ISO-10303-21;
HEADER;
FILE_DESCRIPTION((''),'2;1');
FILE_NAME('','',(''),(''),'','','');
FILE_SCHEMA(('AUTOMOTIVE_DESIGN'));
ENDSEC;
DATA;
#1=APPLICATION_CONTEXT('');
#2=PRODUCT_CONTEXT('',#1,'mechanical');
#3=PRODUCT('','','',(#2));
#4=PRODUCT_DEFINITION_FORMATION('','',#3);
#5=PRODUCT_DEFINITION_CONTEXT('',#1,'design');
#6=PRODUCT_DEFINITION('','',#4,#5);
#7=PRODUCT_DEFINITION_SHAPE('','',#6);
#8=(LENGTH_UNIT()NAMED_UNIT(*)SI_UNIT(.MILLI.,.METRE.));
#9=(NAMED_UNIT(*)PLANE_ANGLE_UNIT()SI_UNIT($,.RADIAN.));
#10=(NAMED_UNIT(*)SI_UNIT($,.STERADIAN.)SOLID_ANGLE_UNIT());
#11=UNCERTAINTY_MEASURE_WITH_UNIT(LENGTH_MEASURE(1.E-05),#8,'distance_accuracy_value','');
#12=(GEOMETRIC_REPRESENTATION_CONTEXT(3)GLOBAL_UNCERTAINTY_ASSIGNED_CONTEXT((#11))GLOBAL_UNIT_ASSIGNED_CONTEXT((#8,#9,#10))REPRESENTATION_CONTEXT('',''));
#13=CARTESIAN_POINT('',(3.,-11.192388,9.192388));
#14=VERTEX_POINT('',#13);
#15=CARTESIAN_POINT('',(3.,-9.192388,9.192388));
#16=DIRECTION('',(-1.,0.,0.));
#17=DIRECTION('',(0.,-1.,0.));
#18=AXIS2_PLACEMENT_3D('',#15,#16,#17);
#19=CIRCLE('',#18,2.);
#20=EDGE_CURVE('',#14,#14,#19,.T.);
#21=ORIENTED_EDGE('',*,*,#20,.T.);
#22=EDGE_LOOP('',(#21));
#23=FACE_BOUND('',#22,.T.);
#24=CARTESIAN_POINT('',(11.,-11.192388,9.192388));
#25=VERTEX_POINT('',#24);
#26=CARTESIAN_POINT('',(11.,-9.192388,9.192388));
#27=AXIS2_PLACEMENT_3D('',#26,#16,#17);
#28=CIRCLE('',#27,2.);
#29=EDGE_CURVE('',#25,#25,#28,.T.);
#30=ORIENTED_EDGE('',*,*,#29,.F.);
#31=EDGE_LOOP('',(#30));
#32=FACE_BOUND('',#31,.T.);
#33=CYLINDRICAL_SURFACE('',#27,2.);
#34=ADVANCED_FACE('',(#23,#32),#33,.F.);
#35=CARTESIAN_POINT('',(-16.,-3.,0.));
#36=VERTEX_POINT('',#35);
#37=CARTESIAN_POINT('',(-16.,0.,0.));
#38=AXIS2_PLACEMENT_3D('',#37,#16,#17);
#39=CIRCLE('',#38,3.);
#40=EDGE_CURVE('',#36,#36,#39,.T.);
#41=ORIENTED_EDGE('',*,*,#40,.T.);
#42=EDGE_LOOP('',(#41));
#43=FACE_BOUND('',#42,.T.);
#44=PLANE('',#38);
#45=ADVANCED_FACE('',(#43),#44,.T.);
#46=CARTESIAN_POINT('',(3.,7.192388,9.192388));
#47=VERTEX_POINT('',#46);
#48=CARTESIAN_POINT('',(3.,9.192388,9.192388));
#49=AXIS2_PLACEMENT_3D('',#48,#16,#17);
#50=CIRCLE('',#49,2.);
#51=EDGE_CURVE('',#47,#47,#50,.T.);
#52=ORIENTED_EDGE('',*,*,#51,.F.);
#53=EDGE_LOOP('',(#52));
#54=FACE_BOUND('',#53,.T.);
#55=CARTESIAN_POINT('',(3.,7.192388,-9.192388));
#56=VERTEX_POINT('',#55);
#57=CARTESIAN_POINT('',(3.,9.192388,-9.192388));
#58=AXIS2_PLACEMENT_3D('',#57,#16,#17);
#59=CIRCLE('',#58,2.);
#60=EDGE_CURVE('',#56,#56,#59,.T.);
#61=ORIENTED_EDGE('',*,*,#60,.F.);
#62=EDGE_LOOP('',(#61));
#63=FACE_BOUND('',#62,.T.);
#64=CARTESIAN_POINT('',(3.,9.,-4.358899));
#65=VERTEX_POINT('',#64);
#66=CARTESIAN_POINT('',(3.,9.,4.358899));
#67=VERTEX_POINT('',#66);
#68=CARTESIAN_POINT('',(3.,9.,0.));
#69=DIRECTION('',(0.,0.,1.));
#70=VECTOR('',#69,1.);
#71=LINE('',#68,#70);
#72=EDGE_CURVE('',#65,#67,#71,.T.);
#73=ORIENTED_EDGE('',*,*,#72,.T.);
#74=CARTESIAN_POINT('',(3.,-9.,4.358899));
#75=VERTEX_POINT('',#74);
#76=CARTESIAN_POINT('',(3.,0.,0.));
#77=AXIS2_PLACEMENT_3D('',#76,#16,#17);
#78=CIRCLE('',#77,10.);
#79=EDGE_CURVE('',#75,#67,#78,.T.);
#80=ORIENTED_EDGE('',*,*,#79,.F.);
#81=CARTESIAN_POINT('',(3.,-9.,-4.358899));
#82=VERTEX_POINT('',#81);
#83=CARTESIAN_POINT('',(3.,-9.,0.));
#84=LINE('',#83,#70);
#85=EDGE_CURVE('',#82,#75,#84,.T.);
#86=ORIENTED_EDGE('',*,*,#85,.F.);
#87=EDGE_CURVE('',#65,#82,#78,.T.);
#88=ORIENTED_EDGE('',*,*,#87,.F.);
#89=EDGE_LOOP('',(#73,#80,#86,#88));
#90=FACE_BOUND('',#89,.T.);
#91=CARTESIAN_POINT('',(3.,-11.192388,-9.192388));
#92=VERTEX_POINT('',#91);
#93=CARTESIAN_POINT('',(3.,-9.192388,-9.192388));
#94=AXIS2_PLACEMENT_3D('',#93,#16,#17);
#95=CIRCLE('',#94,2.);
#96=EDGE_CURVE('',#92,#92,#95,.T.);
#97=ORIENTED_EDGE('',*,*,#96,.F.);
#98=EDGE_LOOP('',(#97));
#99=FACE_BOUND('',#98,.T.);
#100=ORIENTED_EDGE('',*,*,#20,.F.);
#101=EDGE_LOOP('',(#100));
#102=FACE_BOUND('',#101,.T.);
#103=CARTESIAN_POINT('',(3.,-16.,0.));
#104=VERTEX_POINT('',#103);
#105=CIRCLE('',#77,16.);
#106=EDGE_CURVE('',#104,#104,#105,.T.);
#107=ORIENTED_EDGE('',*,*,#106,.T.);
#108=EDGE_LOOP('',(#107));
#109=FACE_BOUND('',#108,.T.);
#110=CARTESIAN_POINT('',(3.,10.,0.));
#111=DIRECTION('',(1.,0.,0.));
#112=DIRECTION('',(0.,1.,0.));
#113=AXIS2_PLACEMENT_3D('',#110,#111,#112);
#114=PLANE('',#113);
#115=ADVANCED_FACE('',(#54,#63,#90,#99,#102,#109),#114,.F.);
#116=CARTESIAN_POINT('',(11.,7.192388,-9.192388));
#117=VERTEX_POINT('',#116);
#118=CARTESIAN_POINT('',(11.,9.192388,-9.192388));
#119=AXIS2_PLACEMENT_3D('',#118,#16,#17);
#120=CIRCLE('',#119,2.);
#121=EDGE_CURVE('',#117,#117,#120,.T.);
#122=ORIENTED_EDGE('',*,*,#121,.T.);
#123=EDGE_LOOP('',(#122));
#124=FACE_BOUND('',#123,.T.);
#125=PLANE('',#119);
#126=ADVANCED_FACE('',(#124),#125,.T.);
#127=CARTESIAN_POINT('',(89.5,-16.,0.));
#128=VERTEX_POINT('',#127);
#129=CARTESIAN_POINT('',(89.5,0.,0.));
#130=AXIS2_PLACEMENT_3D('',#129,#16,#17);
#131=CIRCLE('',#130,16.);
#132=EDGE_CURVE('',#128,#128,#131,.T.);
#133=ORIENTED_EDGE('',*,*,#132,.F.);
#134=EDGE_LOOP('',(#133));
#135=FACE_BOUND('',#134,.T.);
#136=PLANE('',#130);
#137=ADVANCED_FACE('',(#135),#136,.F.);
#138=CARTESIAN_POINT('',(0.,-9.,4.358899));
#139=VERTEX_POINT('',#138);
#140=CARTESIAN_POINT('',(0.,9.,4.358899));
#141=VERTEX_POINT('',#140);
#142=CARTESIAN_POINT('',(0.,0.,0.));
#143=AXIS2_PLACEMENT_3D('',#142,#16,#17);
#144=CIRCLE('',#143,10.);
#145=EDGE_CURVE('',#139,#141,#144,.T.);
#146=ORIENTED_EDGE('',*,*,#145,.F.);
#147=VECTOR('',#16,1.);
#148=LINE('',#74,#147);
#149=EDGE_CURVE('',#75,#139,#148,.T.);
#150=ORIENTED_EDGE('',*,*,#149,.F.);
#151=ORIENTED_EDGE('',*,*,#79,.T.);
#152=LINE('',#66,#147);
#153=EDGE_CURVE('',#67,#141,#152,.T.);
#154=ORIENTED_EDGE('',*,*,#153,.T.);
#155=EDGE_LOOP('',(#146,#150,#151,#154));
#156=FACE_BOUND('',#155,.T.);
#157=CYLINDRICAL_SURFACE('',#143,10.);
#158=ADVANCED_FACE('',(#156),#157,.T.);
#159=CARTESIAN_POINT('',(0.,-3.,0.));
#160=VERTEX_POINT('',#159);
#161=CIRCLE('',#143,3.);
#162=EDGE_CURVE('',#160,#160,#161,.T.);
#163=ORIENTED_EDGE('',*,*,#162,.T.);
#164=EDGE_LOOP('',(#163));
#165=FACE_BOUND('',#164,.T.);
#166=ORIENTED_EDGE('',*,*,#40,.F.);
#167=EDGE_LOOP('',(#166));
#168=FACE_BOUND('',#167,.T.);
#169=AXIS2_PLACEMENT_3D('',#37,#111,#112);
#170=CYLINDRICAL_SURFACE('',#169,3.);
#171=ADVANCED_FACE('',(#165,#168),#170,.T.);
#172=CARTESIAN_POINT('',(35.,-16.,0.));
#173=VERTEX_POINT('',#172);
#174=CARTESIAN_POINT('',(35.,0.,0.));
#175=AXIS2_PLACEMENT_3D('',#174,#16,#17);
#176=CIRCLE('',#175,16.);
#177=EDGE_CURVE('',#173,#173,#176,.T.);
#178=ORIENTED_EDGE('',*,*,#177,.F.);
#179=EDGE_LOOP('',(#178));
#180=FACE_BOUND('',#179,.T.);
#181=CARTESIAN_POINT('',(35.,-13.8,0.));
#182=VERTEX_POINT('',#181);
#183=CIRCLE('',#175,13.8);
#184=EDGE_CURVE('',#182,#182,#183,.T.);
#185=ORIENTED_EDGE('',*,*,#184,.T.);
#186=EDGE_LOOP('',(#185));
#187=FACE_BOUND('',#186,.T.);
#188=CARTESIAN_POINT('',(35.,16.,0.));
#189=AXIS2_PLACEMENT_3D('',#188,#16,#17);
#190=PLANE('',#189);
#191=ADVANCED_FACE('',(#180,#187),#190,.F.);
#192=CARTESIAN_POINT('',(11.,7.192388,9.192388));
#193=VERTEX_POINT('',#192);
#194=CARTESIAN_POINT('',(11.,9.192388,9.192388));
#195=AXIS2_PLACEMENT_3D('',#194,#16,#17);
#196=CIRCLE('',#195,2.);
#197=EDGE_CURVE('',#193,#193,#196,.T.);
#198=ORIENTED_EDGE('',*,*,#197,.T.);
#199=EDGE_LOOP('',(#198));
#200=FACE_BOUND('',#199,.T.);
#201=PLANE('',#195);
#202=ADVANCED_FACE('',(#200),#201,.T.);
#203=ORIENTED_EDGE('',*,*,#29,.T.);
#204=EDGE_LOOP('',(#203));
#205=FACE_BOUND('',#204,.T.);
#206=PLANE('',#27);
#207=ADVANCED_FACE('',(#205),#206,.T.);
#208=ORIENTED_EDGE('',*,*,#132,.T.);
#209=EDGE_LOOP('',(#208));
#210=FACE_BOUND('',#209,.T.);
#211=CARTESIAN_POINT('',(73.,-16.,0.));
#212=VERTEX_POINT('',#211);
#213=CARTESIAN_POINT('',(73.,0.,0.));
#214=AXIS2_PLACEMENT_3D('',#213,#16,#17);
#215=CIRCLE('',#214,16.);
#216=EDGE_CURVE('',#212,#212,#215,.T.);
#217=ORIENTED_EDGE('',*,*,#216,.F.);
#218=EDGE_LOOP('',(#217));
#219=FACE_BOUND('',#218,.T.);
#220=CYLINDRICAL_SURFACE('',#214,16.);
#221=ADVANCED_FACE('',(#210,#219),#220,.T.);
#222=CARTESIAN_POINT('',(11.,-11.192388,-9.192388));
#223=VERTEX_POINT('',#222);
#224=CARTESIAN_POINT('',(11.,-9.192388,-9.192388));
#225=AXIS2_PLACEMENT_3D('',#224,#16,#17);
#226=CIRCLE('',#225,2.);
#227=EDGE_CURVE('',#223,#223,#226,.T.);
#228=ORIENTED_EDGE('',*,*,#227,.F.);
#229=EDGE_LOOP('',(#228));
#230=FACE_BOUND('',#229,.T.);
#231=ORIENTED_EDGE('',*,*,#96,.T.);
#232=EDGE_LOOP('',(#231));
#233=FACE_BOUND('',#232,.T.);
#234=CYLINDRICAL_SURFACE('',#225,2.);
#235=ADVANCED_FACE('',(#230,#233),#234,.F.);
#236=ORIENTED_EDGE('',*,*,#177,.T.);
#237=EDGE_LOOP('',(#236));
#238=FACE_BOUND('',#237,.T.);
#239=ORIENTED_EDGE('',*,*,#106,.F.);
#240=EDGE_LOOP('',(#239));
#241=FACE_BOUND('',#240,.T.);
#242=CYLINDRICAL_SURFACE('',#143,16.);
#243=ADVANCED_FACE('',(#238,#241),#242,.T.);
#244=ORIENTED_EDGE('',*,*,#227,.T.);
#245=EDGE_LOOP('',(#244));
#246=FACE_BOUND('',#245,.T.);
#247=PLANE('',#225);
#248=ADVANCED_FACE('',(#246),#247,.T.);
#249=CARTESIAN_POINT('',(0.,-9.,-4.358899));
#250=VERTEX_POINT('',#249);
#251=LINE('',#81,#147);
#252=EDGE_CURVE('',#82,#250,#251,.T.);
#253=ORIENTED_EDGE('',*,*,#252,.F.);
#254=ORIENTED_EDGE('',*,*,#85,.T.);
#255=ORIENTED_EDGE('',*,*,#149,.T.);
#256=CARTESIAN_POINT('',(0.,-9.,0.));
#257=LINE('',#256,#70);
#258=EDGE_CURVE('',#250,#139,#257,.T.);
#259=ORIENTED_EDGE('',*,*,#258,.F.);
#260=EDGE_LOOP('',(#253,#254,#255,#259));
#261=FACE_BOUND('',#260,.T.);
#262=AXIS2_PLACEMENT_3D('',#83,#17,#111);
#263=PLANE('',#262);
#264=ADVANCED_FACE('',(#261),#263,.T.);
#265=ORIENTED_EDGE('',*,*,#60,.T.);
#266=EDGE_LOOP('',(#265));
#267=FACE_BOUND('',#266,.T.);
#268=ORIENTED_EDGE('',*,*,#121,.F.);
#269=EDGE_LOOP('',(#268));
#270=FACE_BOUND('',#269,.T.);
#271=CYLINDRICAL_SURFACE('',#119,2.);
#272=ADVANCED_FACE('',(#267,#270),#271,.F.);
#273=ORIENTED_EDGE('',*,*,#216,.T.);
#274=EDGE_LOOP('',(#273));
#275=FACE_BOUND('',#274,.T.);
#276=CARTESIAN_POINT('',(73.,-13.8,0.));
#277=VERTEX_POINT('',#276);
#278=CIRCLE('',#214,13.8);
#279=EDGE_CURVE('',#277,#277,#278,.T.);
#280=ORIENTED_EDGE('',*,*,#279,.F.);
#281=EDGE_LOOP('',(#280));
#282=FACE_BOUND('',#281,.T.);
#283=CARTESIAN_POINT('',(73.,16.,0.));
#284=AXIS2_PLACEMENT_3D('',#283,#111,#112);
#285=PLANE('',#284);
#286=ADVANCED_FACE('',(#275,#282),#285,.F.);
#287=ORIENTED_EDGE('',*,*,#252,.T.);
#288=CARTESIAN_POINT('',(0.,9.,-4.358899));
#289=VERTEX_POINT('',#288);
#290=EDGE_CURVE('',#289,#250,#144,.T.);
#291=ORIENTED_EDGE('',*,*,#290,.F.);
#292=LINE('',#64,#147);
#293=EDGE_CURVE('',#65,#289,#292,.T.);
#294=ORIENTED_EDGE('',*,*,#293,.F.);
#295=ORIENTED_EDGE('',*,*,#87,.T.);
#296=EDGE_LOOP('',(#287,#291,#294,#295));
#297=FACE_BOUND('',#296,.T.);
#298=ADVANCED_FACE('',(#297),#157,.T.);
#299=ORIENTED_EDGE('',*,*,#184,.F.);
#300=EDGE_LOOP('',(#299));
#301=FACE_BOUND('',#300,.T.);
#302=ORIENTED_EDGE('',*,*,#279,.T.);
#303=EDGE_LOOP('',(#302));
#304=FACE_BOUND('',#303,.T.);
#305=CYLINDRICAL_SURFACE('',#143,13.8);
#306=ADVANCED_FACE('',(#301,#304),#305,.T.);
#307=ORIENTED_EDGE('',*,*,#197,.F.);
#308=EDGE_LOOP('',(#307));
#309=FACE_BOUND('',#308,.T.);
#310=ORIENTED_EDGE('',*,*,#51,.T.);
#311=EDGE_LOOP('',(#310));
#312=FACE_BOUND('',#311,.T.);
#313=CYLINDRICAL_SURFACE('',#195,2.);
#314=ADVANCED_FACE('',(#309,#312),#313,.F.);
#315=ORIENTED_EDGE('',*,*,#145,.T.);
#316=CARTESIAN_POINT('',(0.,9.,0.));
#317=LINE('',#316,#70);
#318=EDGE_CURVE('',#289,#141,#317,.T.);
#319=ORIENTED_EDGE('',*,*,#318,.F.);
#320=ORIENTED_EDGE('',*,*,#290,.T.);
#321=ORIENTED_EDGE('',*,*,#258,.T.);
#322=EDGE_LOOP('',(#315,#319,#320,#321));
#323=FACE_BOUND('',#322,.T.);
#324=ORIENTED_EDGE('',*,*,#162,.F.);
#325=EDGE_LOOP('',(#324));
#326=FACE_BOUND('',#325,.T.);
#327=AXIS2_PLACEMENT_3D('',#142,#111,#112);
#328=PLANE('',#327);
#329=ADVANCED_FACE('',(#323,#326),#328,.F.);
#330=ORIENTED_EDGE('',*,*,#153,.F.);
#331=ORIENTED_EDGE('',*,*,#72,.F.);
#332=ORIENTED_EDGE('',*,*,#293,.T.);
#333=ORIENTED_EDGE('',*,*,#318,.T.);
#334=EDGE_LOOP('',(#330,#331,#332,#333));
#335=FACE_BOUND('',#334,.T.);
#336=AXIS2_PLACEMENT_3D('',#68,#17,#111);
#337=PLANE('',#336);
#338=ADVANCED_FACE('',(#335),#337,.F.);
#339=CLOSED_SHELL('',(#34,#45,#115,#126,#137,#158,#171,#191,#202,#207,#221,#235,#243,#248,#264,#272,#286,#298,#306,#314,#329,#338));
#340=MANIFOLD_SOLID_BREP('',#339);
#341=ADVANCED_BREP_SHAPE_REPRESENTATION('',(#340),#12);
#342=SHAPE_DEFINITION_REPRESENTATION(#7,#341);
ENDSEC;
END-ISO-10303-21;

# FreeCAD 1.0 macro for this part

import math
import FreeCAD as App
import Part
import Sketcher

doc = App.newDocument("Part")
params = doc.addObject("Spreadsheet::Sheet", "Params")
for row, (alias, value) in enumerate([
    ("sketch1_width", "73 mm"),
    ("sketch1_width2", "38 mm"),
    ("sketch1_width3", "32 mm"),
    ("sketch1_height", "10 mm"),
    ("sketch1_height2", "6 mm"),
    ("revolution_angle", "360 deg"),
    ("sketch2_height", "16 mm"),
    ("sketch2_width", "16.5 mm"),
    ("revolution2_angle", "360 deg"),
    ("sketch3_diameter", "4 mm"),
    ("pocket1_length", "8 mm"),
    ("sketch4_diameter", "6 mm"),
    ("pad1_length", "16 mm"),
    ("sketch5_radius", "10 mm"),
    ("pocket2_length", "3 mm"),
], start=1):
    params.set(f"A{row}", alias)
    params.set(f"B{row}", "=" + value)
    params.setAlias(f"B{row}", alias)

body = doc.addObject("PartDesign::Body", "Body")

# Sketch on XY plane
sketch1 = body.newObject("Sketcher::SketchObject", "Sketch")
sketch1.AttachmentSupport = (doc.getObject("XY_Plane"), [""])
sketch1.MapMode = "FlatFace"
sketch1.addGeometry([
    Part.LineSegment(App.Vector(0, 10, 0), App.Vector(0, 0, 0)),  # 0
    Part.LineSegment(App.Vector(0, 0, 0), App.Vector(73, 0, 0)),  # 1
    Part.LineSegment(App.Vector(73, 0, 0), App.Vector(73, 13.8, 0)),  # 2
    Part.LineSegment(App.Vector(73, 13.8, 0), App.Vector(35, 13.8, 0)),  # 3
    Part.LineSegment(App.Vector(35, 13.8, 0), App.Vector(35, 16, 0)),  # 4
    Part.LineSegment(App.Vector(35, 16, 0), App.Vector(3, 16, 0)),  # 5
    Part.LineSegment(App.Vector(3, 16, 0), App.Vector(3, 10, 0)),  # 6
    Part.LineSegment(App.Vector(3, 10, 0), App.Vector(0, 10, 0)),  # 7
], False)
sketch1.addConstraint([
    Sketcher.Constraint("Coincident", 0, 2, 1, 1),
    Sketcher.Constraint("Coincident", 1, 2, 2, 1),
    Sketcher.Constraint("Coincident", 2, 2, 3, 1),
    Sketcher.Constraint("Coincident", 3, 2, 4, 1),
    Sketcher.Constraint("Coincident", 4, 2, 5, 1),
    Sketcher.Constraint("Coincident", 5, 2, 6, 1),
    Sketcher.Constraint("Coincident", 6, 2, 7, 1),
    Sketcher.Constraint("Coincident", 7, 2, 0, 1),
    Sketcher.Constraint("Vertical", 0),
    Sketcher.Constraint("Horizontal", 1),
    Sketcher.Constraint("Vertical", 2),
    Sketcher.Constraint("Horizontal", 3),
    Sketcher.Constraint("Vertical", 4),
    Sketcher.Constraint("Horizontal", 5),
    Sketcher.Constraint("Vertical", 6),
    Sketcher.Constraint("Horizontal", 7),
    Sketcher.Constraint("Coincident", 0, 2, -1, 1),
    Sketcher.Constraint("DistanceX", 1, 1, 1, 2, 73.0),
    Sketcher.Constraint("DistanceX", 3, 2, 3, 1, 38.0),
    Sketcher.Constraint("DistanceX", 5, 2, 5, 1, 32.0),
    Sketcher.Constraint("DistanceY", 0, 2, 0, 1, 10.0),
    Sketcher.Constraint("DistanceY", 6, 2, 6, 1, 6.0),
    Sketcher.Constraint("DistanceY", 2, 1, 2, 2, 13.8),
])
sketch1.setExpression("Constraints[17]", "Params.sketch1_width")
sketch1.setExpression("Constraints[18]", "Params.sketch1_width2")
sketch1.setExpression("Constraints[19]", "Params.sketch1_width3")
sketch1.setExpression("Constraints[20]", "Params.sketch1_height")
sketch1.setExpression("Constraints[21]", "Params.sketch1_height2")
revolution = body.newObject("PartDesign::Revolution", "Revolution")
revolution.Profile = sketch1
revolution.ReferenceAxis = (sketch1, ["H_Axis"])
revolution.setExpression("Angle", "Params.revolution_angle")

# Sketch on XY plane
sketch2 = body.newObject("Sketcher::SketchObject", "Sketch001")
sketch2.AttachmentSupport = (doc.getObject("XY_Plane"), [""])
sketch2.MapMode = "FlatFace"
sketch2.addGeometry([
    Part.LineSegment(App.Vector(73, 16, 0), App.Vector(73, 0, 0)),
    Part.LineSegment(App.Vector(73, 0, 0), App.Vector(90, 0, 0)),
    Part.LineSegment(App.Vector(90, 0, 0), App.Vector(90, 16, 0)),
    Part.LineSegment(App.Vector(90, 16, 0), App.Vector(73, 16, 0)),
], False)
sketch2.addConstraint([
    Sketcher.Constraint("Coincident", 0, 2, 1, 1),
    Sketcher.Constraint("Coincident", 1, 2, 2, 1),
    Sketcher.Constraint("Coincident", 2, 2, 3, 1),
    Sketcher.Constraint("Coincident", 3, 2, 0, 1),
    Sketcher.Constraint("Vertical", 0),
    Sketcher.Constraint("Horizontal", 1),
    Sketcher.Constraint("Vertical", 2),
    Sketcher.Constraint("Horizontal", 3),
    Sketcher.Constraint("PointOnObject", 0, 2, -1),
    Sketcher.Constraint("DistanceY", 0, 2, 0, 1, 16.0),
    Sketcher.Constraint("DistanceX", 1, 1, 1, 2, 16.5),
    Sketcher.Constraint("DistanceX", -1, 1, 0, 2, 73.0),
])
sketch2.setExpression("Constraints[9]", "Params.sketch2_height")
sketch2.setExpression("Constraints[10]", "Params.sketch2_width")
revolution2 = body.newObject("PartDesign::Revolution", "Revolution001")
revolution2.Profile = sketch2
revolution2.ReferenceAxis = (sketch2, ["H_Axis"])
revolution2.setExpression("Angle", "Params.revolution2_angle")

# Sketch on YZ plane
sketch3 = body.newObject("Sketcher::SketchObject", "Sketch002")
sketch3.AttachmentSupport = (doc.getObject("YZ_Plane"), [""])
sketch3.MapMode = "FlatFace"
sketch3.AttachmentOffset = App.Placement(App.Vector(0, 0, 3), App.Rotation())
sketch3.addGeometry([
    Part.Circle(App.Vector(9.2, 9.2, 0), App.Vector(0, 0, 1), 2),
    Part.Circle(App.Vector(-9.2, 9.2, 0), App.Vector(0, 0, 1), 2),
    Part.Circle(App.Vector(-9.2, -9.2, 0), App.Vector(0, 0, 1), 2),
    Part.Circle(App.Vector(9.2, -9.2, 0), App.Vector(0, 0, 1), 2),
], False)
sketch3.addConstraint([
    Sketcher.Constraint("Equal", 0, 1),
    Sketcher.Constraint("Equal", 1, 2),
    Sketcher.Constraint("Equal", 2, 3),
    Sketcher.Constraint("Symmetric", 0, 3, 2, 3, -1, 1),
    Sketcher.Constraint("Symmetric", 1, 3, 3, 3, -1, 1),
    Sketcher.Constraint("Symmetric", 0, 3, 1, 3, -2),
    Sketcher.Constraint("Diameter", 0, 4.0),
    Sketcher.Constraint("DistanceX", -1, 1, 0, 3, 9.192388),
    Sketcher.Constraint("DistanceY", -1, 1, 0, 3, 9.192388),
])
sketch3.setExpression("Constraints[6]", "Params.sketch3_diameter")
pocket1 = body.newObject("PartDesign::Pocket", "Pocket")
pocket1.Profile = sketch3
pocket1.setExpression("Length", "Params.pocket1_length")
pocket1.Reversed = True

# Sketch on YZ plane
sketch4 = body.newObject("Sketcher::SketchObject", "Sketch003")
sketch4.AttachmentSupport = (doc.getObject("YZ_Plane"), [""])
sketch4.MapMode = "FlatFace"
sketch4.addGeometry(Part.Circle(App.Vector(0, 0, 0), App.Vector(0, 0, 1), 3), False)
sketch4.addConstraint([
    Sketcher.Constraint("Coincident", 0, 3, -1, 1),
    Sketcher.Constraint("Diameter", 0, 6.0),
])
sketch4.setExpression("Constraints[1]", "Params.sketch4_diameter")
pad1 = body.newObject("PartDesign::Pad", "Pad")
pad1.Profile = sketch4
pad1.setExpression("Length", "Params.pad1_length")
pad1.Reversed = True

# Sketch on YZ plane
sketch5 = body.newObject("Sketcher::SketchObject", "Sketch004")
sketch5.AttachmentSupport = (doc.getObject("YZ_Plane"), [""])
sketch5.MapMode = "FlatFace"
sketch5.AttachmentOffset = App.Placement(App.Vector(0, 0, 3), App.Rotation())
sketch5.addGeometry([
    Part.LineSegment(App.Vector(-9, 4, 0), App.Vector(-9, -4, 0)),
    Part.ArcOfCircle(Part.Circle(App.Vector(0, 0, 0), App.Vector(0, 0, 1), 10), math.radians(154), math.radians(206)),
    Part.ArcOfCircle(Part.Circle(App.Vector(0, 0, 0), App.Vector(0, 0, 1), 10), math.radians(-26), math.radians(26)),
    Part.LineSegment(App.Vector(9, -4, 0), App.Vector(9, 4, 0)),
], False)
sketch5.addConstraint([
    Sketcher.Constraint("Coincident", 0, 1, 1, 1),
    Sketcher.Constraint("Coincident", 1, 2, 0, 2),
    Sketcher.Constraint("Coincident", 2, 1, 3, 1),
    Sketcher.Constraint("Coincident", 3, 2, 2, 2),
    Sketcher.Constraint("Vertical", 0),
    Sketcher.Constraint("Vertical", 3),
    Sketcher.Constraint("Coincident", 1, 3, -1, 1),
    Sketcher.Constraint("Coincident", 2, 3, -1, 1),
    Sketcher.Constraint("Equal", 1, 2),
    Sketcher.Constraint("Horizontal", 1, 2, 2, 1),
    Sketcher.Constraint("Radius", 1, 10.0),
    Sketcher.Constraint("DistanceX", 0, 1, -1, 1, 9.0),
])
sketch5.setExpression("Constraints[10]", "Params.sketch5_radius")
pocket2 = body.newObject("PartDesign::Pocket", "Pocket001")
pocket2.Profile = sketch5
pocket2.setExpression("Length", "Params.pocket2_length")

doc.recompute()
